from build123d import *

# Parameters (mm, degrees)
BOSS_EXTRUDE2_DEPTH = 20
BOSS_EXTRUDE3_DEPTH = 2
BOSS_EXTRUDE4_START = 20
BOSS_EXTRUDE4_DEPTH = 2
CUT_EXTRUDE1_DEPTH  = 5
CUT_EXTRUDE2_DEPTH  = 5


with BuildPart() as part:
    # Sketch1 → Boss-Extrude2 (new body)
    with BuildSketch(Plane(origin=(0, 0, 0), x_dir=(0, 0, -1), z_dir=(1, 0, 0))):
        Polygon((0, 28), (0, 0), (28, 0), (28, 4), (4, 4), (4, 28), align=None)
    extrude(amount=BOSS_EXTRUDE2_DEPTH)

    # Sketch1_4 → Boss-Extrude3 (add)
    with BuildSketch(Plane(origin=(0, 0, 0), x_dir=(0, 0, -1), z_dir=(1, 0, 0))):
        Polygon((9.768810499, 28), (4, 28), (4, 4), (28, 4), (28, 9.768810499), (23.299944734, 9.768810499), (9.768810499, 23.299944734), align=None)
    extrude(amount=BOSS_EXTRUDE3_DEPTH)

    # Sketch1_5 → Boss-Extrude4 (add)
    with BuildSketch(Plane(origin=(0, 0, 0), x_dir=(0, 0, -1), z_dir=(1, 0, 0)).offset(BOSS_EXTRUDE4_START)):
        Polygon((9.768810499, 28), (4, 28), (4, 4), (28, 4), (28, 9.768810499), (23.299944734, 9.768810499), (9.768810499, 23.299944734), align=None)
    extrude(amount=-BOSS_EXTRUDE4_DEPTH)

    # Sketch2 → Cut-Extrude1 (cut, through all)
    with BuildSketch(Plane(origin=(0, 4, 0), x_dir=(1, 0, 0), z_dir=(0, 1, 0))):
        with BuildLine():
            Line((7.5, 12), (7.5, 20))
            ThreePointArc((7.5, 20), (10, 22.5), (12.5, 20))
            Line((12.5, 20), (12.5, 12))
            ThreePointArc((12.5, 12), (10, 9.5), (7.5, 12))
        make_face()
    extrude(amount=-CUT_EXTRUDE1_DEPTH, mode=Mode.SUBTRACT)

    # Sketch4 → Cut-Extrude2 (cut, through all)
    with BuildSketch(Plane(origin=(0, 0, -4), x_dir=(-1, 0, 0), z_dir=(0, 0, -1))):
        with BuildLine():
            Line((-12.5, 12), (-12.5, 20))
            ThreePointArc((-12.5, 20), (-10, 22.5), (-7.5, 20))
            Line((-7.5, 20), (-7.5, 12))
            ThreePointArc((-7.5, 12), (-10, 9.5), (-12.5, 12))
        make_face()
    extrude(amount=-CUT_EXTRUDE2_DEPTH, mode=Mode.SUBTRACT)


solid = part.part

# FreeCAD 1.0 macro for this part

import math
import FreeCAD as App
import Part
import Sketcher

V = App.Vector
Q = App.Units.Quantity

doc = App.newDocument("Part")
body = doc.addObject("PartDesign::Body", "Body")

# Sketch on YZ plane
sketch1 = doc.addObject("Sketcher::SketchObject", "Sketch")
body.addObject(sketch1)
sketch1.AttachmentSupport = (doc.YZ_Plane, [""])
sketch1.MapMode = "FlatFace"
sketch1.addGeometry([
    Part.LineSegment(V(28, 0, 0), V(0, 0, 0)),  # 0
    Part.LineSegment(V(0, 0, 0), V(0, -28, 0)),  # 1
    Part.LineSegment(V(0, -28, 0), V(4, -28, 0)),  # 2
    Part.LineSegment(V(4, -28, 0), V(4, -4, 0)),  # 3
    Part.LineSegment(V(4, -4, 0), V(28, -4, 0)),  # 4
    Part.LineSegment(V(28, -4, 0), V(28, 0, 0)),  # 5
], False)
sketch1.addConstraint([
    Sketcher.Constraint("Coincident", 0, 2, 1, 1),
    Sketcher.Constraint("Coincident", 1, 2, 2, 1),
    Sketcher.Constraint("Coincident", 2, 2, 3, 1),
    Sketcher.Constraint("Coincident", 3, 2, 4, 1),
    Sketcher.Constraint("Coincident", 4, 2, 5, 1),
    Sketcher.Constraint("Coincident", 5, 2, 0, 1),
    Sketcher.Constraint("Horizontal", 0),
    Sketcher.Constraint("Vertical", 1),
    Sketcher.Constraint("Horizontal", 2),
    Sketcher.Constraint("Vertical", 3),
    Sketcher.Constraint("Horizontal", 4),
    Sketcher.Constraint("Vertical", 5),
    Sketcher.Constraint("Coincident", 0, 2, -1, 1),
    Sketcher.Constraint("Equal", 0, 1),
    Sketcher.Constraint("Equal", 4, 3),
    Sketcher.Constraint("DistanceX", 0, 2, 0, 1, Q("28 mm")),
    Sketcher.Constraint("DistanceX", 2, 1, 2, 2, Q("4 mm")),
])
pad1 = doc.addObject("PartDesign::Pad", "Pad")
body.addObject(pad1)
pad1.Profile = sketch1
pad1.Length = 20

# Sketch on YZ plane
sketch2 = doc.addObject("Sketcher::SketchObject", "Sketch001")
body.addObject(sketch2)
sketch2.AttachmentSupport = (doc.YZ_Plane, [""])
sketch2.MapMode = "FlatFace"
sketch2.addGeometry([
    Part.LineSegment(V(28, -9.8, 0), V(28, -4, 0)),  # 0
    Part.LineSegment(V(28, -4, 0), V(4, -4, 0)),  # 1
    Part.LineSegment(V(4, -4, 0), V(4, -28, 0)),  # 2
    Part.LineSegment(V(4, -28, 0), V(9.8, -28, 0)),  # 3
    Part.LineSegment(V(9.8, -28, 0), V(9.8, -23.3, 0)),  # 4
    Part.LineSegment(V(9.8, -23.3, 0), V(23.3, -9.8, 0)),  # 5
    Part.LineSegment(V(23.3, -9.8, 0), V(28, -9.8, 0)),  # 6
], False)
sketch2.addConstraint([
    Sketcher.Constraint("Coincident", 0, 2, 1, 1),
    Sketcher.Constraint("Coincident", 1, 2, 2, 1),
    Sketcher.Constraint("Coincident", 2, 2, 3, 1),
    Sketcher.Constraint("Coincident", 3, 2, 4, 1),
    Sketcher.Constraint("Coincident", 4, 2, 5, 1),
    Sketcher.Constraint("Coincident", 5, 2, 6, 1),
    Sketcher.Constraint("Coincident", 6, 2, 0, 1),
    Sketcher.Constraint("Vertical", 0),
    Sketcher.Constraint("Horizontal", 1),
    Sketcher.Constraint("Vertical", 2),
    Sketcher.Constraint("Horizontal", 3),
    Sketcher.Constraint("Vertical", 4),
    Sketcher.Constraint("Horizontal", 6),
    Sketcher.Constraint("Equal", 3, 0),
    Sketcher.Constraint("Equal", 1, 2),
    Sketcher.Constraint("Equal", 6, 4),
    Sketcher.Constraint("DistanceX", 1, 2, 1, 1, Q("24 mm")),
    Sketcher.Constraint("DistanceX", -1, 1, 0, 2, Q("28 mm")),
    Sketcher.Constraint("DistanceY", 0, 2, -1, 1, Q("4 mm")),
    Sketcher.Constraint("DistanceX", 3, 1, 3, 2, Q("5.76881 mm")),
    Sketcher.Constraint("DistanceX", 6, 1, 6, 2, Q("4.700055 mm")),
])
pad2 = doc.addObject("PartDesign::Pad", "Pad001")
body.addObject(pad2)
pad2.Profile = sketch2
pad2.Length = 2

# Sketch on YZ plane
sketch3 = doc.addObject("Sketcher::SketchObject", "Sketch002")
body.addObject(sketch3)
sketch3.AttachmentSupport = (doc.YZ_Plane, [""])
sketch3.MapMode = "FlatFace"
sketch3.AttachmentOffset = App.Placement(V(0, 0, 20), App.Rotation())
sketch3.addGeometry([
    Part.LineSegment(V(28, -9.8, 0), V(28, -4, 0)),  # 0
    Part.LineSegment(V(28, -4, 0), V(4, -4, 0)),  # 1
    Part.LineSegment(V(4, -4, 0), V(4, -28, 0)),  # 2
    Part.LineSegment(V(4, -28, 0), V(9.8, -28, 0)),  # 3
    Part.LineSegment(V(9.8, -28, 0), V(9.8, -23.3, 0)),  # 4
    Part.LineSegment(V(9.8, -23.3, 0), V(23.3, -9.8, 0)),  # 5
    Part.LineSegment(V(23.3, -9.8, 0), V(28, -9.8, 0)),  # 6
], False)
sketch3.addConstraint([
    Sketcher.Constraint("Coincident", 0, 2, 1, 1),
    Sketcher.Constraint("Coincident", 1, 2, 2, 1),
    Sketcher.Constraint("Coincident", 2, 2, 3, 1),
    Sketcher.Constraint("Coincident", 3, 2, 4, 1),
    Sketcher.Constraint("Coincident", 4, 2, 5, 1),
    Sketcher.Constraint("Coincident", 5, 2, 6, 1),
    Sketcher.Constraint("Coincident", 6, 2, 0, 1),
    Sketcher.Constraint("Vertical", 0),
    Sketcher.Constraint("Horizontal", 1),
    Sketcher.Constraint("Vertical", 2),
    Sketcher.Constraint("Horizontal", 3),
    Sketcher.Constraint("Vertical", 4),
    Sketcher.Constraint("Horizontal", 6),
    Sketcher.Constraint("Equal", 3, 0),
    Sketcher.Constraint("Equal", 1, 2),
    Sketcher.Constraint("Equal", 6, 4),
    Sketcher.Constraint("DistanceX", 1, 2, 1, 1, Q("24 mm")),
    Sketcher.Constraint("DistanceX", -1, 1, 0, 2, Q("28 mm")),
    Sketcher.Constraint("DistanceY", 0, 2, -1, 1, Q("4 mm")),
    Sketcher.Constraint("DistanceX", 3, 1, 3, 2, Q("5.76881 mm")),
    Sketcher.Constraint("DistanceX", 6, 1, 6, 2, Q("4.700055 mm")),
])
pad3 = doc.addObject("PartDesign::Pad", "Pad002")
body.addObject(pad3)
pad3.Profile = sketch3
pad3.Length = 2
pad3.Reversed = True

# Sketch on XZ plane
sketch4 = doc.addObject("Sketcher::SketchObject", "Sketch003")
body.addObject(sketch4)
sketch4.AttachmentSupport = (doc.XZ_Plane, [""])
sketch4.MapMode = "FlatFace"
sketch4.AttachmentOffset = App.Placement(V(0, 0, -4), App.Rotation())
sketch4.addGeometry([
    Part.LineSegment(V(7.5, -20, 0), V(7.5, -12, 0)),
    Part.ArcOfCircle(Part.Circle(V(10, -12, 0), V(0, 0, 1), 2.5), math.radians(0), math.radians(180)),
    Part.LineSegment(V(12.5, -12, 0), V(12.5, -20, 0)),
    Part.ArcOfCircle(Part.Circle(V(10, -20, 0), V(0, 0, 1), 2.5), math.radians(180), math.radians(360)),
], False)
sketch4.addConstraint([
    Sketcher.Constraint("Tangent", 0, 2, 1, 2),
    Sketcher.Constraint("Tangent", 1, 1, 2, 1),
    Sketcher.Constraint("Tangent", 2, 2, 3, 2),
    Sketcher.Constraint("Tangent", 3, 1, 0, 1),
    Sketcher.Constraint("Vertical", 0),
    Sketcher.Constraint("Vertical", 2),
    Sketcher.Constraint("Radius", 1, Q("2.5 mm")),
    Sketcher.Constraint("DistanceY", 0, 1, 0, 2, Q("8 mm")),
    Sketcher.Constraint("DistanceX", -1, 1, 1, 3, Q("10 mm")),
    Sketcher.Constraint("DistanceY", 1, 3, -1, 1, Q("12 mm")),
])
pocket1 = doc.addObject("PartDesign::Pocket", "Pocket")
body.addObject(pocket1)
pocket1.Profile = sketch4
pocket1.Type = "ThroughAll"
pocket1.Reversed = True

# Sketch on XY plane
sketch5 = doc.addObject("Sketcher::SketchObject", "Sketch004")
body.addObject(sketch5)
sketch5.AttachmentSupport = (doc.XY_Plane, [""])
sketch5.MapMode = "FlatFace"
sketch5.AttachmentOffset = App.Placement(V(0, 0, -4), App.Rotation())
sketch5.addGeometry([
    Part.LineSegment(V(12.5, 20, 0), V(12.5, 12, 0)),
    Part.ArcOfCircle(Part.Circle(V(10, 12, 0), V(0, 0, 1), 2.5), math.radians(180), math.radians(360)),
    Part.LineSegment(V(7.5, 12, 0), V(7.5, 20, 0)),
    Part.ArcOfCircle(Part.Circle(V(10, 20, 0), V(0, 0, 1), 2.5), math.radians(0), math.radians(180)),
], False)
sketch5.addConstraint([
    Sketcher.Constraint("Tangent", 0, 2, 1, 2),
    Sketcher.Constraint("Tangent", 1, 1, 2, 1),
    Sketcher.Constraint("Tangent", 2, 2, 3, 2),
    Sketcher.Constraint("Tangent", 3, 1, 0, 1),
    Sketcher.Constraint("Vertical", 0),
    Sketcher.Constraint("Vertical", 2),
    Sketcher.Constraint("Radius", 1, Q("2.5 mm")),
    Sketcher.Constraint("DistanceY", 0, 2, 0, 1, Q("8 mm")),
    Sketcher.Constraint("DistanceX", -1, 1, 1, 3, Q("10 mm")),
    Sketcher.Constraint("DistanceY", -1, 1, 1, 3, Q("12 mm")),
])
pocket2 = doc.addObject("PartDesign::Pocket", "Pocket001")
body.addObject(pocket2)
pocket2.Profile = sketch5
pocket2.Type = "ThroughAll"
pocket2.Reversed = True

doc.recompute()
